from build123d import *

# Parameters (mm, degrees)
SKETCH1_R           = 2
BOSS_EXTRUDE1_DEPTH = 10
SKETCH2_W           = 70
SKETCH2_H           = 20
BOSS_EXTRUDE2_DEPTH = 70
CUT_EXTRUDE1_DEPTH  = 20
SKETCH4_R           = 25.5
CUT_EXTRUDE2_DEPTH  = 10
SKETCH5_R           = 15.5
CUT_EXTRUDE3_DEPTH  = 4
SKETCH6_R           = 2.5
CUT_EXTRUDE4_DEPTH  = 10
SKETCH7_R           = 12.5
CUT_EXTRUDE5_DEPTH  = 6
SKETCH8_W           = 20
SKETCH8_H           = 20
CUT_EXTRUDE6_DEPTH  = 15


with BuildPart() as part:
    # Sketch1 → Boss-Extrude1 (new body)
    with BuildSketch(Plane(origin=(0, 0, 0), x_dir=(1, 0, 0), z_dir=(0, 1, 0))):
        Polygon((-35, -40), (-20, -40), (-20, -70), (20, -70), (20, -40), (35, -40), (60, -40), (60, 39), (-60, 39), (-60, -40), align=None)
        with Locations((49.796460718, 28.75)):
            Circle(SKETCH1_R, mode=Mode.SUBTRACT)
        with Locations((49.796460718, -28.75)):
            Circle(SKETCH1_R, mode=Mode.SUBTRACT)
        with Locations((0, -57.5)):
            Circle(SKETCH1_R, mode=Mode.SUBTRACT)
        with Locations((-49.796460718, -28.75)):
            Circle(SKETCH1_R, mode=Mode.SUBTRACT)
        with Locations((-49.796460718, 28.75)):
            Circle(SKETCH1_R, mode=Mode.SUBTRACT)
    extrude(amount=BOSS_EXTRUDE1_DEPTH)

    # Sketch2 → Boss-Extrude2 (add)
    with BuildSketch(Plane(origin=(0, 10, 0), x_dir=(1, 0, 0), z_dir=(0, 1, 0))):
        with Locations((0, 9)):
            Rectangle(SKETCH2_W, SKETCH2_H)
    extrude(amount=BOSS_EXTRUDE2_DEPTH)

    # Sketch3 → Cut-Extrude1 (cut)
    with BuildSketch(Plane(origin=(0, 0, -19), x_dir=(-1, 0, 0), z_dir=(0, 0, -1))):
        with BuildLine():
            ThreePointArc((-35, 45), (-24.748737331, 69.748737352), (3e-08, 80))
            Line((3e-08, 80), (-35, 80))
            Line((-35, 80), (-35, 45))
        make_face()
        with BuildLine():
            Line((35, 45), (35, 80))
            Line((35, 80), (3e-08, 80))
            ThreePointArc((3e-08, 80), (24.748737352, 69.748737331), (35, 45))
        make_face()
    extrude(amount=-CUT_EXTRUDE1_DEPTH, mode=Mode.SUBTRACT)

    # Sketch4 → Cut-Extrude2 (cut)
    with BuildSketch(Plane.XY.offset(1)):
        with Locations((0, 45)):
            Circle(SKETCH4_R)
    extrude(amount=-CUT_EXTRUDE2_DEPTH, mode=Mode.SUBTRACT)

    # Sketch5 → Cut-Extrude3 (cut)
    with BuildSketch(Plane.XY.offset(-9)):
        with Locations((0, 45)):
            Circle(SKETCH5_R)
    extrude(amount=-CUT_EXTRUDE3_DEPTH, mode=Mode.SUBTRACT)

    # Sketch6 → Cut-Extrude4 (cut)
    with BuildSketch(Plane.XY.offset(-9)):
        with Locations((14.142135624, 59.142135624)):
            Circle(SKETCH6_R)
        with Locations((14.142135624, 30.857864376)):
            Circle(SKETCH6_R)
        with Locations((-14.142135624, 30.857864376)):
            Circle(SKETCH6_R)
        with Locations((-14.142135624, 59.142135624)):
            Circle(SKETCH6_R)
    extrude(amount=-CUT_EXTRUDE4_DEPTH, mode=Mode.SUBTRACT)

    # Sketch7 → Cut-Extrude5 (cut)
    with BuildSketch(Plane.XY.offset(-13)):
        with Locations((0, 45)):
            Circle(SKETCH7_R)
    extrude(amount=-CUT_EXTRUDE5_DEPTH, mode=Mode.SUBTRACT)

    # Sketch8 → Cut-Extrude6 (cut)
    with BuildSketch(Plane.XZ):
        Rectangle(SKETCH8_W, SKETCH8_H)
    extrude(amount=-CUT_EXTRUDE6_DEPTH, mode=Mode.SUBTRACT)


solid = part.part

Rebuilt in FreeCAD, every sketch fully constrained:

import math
import FreeCAD as App
import Part
import Sketcher
from FreeCAD import Vector

doc = App.newDocument("Part")
body = doc.addObject("PartDesign::Body", "Body")

# Sketch on XZ plane
sketch1 = doc.addObject("Sketcher::SketchObject", "Sketch")
body.addObject(sketch1)
sketch1.AttachmentSupport = (doc.XZ_Plane, [""])
sketch1.MapMode = "FlatFace"
sketch1.addGeometry([
    Part.LineSegment(Vector(-20, 40, 0), Vector(-20, 70, 0)),  # 0
    Part.LineSegment(Vector(-20, 70, 0), Vector(20, 70, 0)),  # 1
    Part.LineSegment(Vector(20, 70, 0), Vector(20, 40, 0)),  # 2
    Part.LineSegment(Vector(20, 40, 0), Vector(60, 40, 0)),  # 3
    Part.LineSegment(Vector(60, 40, 0), Vector(60, -39, 0)),  # 4
    Part.LineSegment(Vector(60, -39, 0), Vector(-60, -39, 0)),  # 5
    Part.LineSegment(Vector(-60, -39, 0), Vector(-60, 40, 0)),  # 6
    Part.LineSegment(Vector(-60, 40, 0), Vector(-20, 40, 0)),  # 7
    Part.Circle(Vector(-49.8, 28.8, 0), Vector(0, 0, 1), 2),  # 8
    Part.Circle(Vector(0, 57.5, 0), Vector(0, 0, 1), 2),  # 9
    Part.Circle(Vector(49.8, 28.8, 0), Vector(0, 0, 1), 2),  # 10
    Part.Circle(Vector(-49.8, -28.8, 0), Vector(0, 0, 1), 2),  # 11
    Part.Circle(Vector(49.8, -28.8, 0), Vector(0, 0, 1), 2),  # 12
], False)
sketch1.addConstraint([
    Sketcher.Constraint("Coincident", 0, 2, 1, 1),
    Sketcher.Constraint("Coincident", 1, 2, 2, 1),
    Sketcher.Constraint("Coincident", 2, 2, 3, 1),
    Sketcher.Constraint("Coincident", 3, 2, 4, 1),
    Sketcher.Constraint("Coincident", 4, 2, 5, 1),
    Sketcher.Constraint("Coincident", 5, 2, 6, 1),
    Sketcher.Constraint("Coincident", 6, 2, 7, 1),
    Sketcher.Constraint("Coincident", 7, 2, 0, 1),
    Sketcher.Constraint("Vertical", 0),
    Sketcher.Constraint("Horizontal", 1),
    Sketcher.Constraint("Vertical", 2),
    Sketcher.Constraint("Horizontal", 3),
    Sketcher.Constraint("Vertical", 4),
    Sketcher.Constraint("Horizontal", 5),
    Sketcher.Constraint("Vertical", 6),
    Sketcher.Constraint("Horizontal", 7),
    Sketcher.Constraint("Equal", 8, 9),
    Sketcher.Constraint("Equal", 9, 10),
    Sketcher.Constraint("Equal", 10, 11),
    Sketcher.Constraint("Equal", 11, 12),
    Sketcher.Constraint("Symmetric", 10, 3, 11, 3, -1, 1),
    Sketcher.Constraint("Symmetric", 8, 3, 12, 3, -1, 1),
    Sketcher.Constraint("Symmetric", 8, 3, 10, 3, -2),
    Sketcher.Constraint("Symmetric", 3, 2, 6, 2, -2),
    Sketcher.Constraint("PointOnObject", 9, 3, -2),
    Sketcher.Constraint("Equal", 1, 3),
    Sketcher.Constraint("Equal", 3, 7),
    Sketcher.Constraint("Diameter", 8, 4.0),
    Sketcher.Constraint("DistanceX", 1, 1, 1, 2, 40.0),
    Sketcher.Constraint("DistanceY", 0, 1, 0, 2, 30.0),
    Sketcher.Constraint("DistanceY", 4, 2, 4, 1, 79.0),
    Sketcher.Constraint("DistanceY", -1, 1, 0, 2, 70.0),
    Sketcher.Constraint("DistanceY", -1, 1, 9, 3, 57.5),
    Sketcher.Constraint("DistanceY", 11, 3, 8, 3, 57.5),
    Sketcher.Constraint("DistanceX", 8, 3, -1, 1, 49.796461),
])
pad1 = doc.addObject("PartDesign::Pad", "Pad")
body.addObject(pad1)
pad1.Profile = sketch1
pad1.Length = 10
pad1.Reversed = True

# Sketch on XZ plane
sketch2 = doc.addObject("Sketcher::SketchObject", "Sketch001")
body.addObject(sketch2)
sketch2.AttachmentSupport = (doc.XZ_Plane, [""])
sketch2.MapMode = "FlatFace"
sketch2.AttachmentOffset = App.Placement(Vector(0, 0, -10), App.Rotation())
sketch2.addGeometry([
    Part.LineSegment(Vector(-35, -19, 0), Vector(-35, 1, 0)),
    Part.LineSegment(Vector(-35, 1, 0), Vector(35, 1, 0)),
    Part.LineSegment(Vector(35, 1, 0), Vector(35, -19, 0)),
    Part.LineSegment(Vector(35, -19, 0), Vector(-35, -19, 0)),
], False)
sketch2.addConstraint([
    Sketcher.Constraint("Coincident", 0, 2, 1, 1),
    Sketcher.Constraint("Coincident", 1, 2, 2, 1),
    Sketcher.Constraint("Coincident", 2, 2, 3, 1),
    Sketcher.Constraint("Coincident", 3, 2, 0, 1),
    Sketcher.Constraint("Vertical", 0),
    Sketcher.Constraint("Horizontal", 1),
    Sketcher.Constraint("Vertical", 2),
    Sketcher.Constraint("Horizontal", 3),
    Sketcher.Constraint("DistanceX", 1, 1, 1, 2, 70.0),
    Sketcher.Constraint("DistanceY", 0, 1, 0, 2, 20.0),
    Sketcher.Constraint("DistanceX", 0, 2, -1, 1, 35.0),
    Sketcher.Constraint("DistanceY", -1, 1, 0, 2, 1.0),
])
pad2 = doc.addObject("PartDesign::Pad", "Pad001")
body.addObject(pad2)
pad2.Profile = sketch2
pad2.Length = 70
pad2.Reversed = True

# Sketch on XY plane
sketch3 = doc.addObject("Sketcher::SketchObject", "Sketch002")
body.addObject(sketch3)
sketch3.AttachmentSupport = (doc.XY_Plane, [""])
sketch3.MapMode = "FlatFace"
sketch3.AttachmentOffset = App.Placement(Vector(0, 0, -19), App.Rotation())
sketch3.addGeometry([
    Part.ArcOfCircle(Part.Circle(Vector(0, 45, 0), Vector(0, 0, 1), 35), math.radians(0), math.radians(90)),  # 0
    Part.LineSegment(Vector(0, 80, 0), Vector(35, 80, 0)),  # 1
    Part.LineSegment(Vector(35, 80, 0), Vector(35, 45, 0)),  # 2
    Part.LineSegment(Vector(-35, 45, 0), Vector(-35, 80, 0)),  # 3
    Part.LineSegment(Vector(-35, 80, 0), Vector(0, 80, 0)),  # 4
    Part.ArcOfCircle(Part.Circle(Vector(0, 45, 0), Vector(0, 0, 1), 35), math.radians(90), math.radians(180)),  # 5
], False)
sketch3.addConstraint([
    Sketcher.Constraint("Tangent", 0, 2, 1, 1),
    Sketcher.Constraint("Coincident", 1, 2, 2, 1),
    Sketcher.Constraint("Tangent", 2, 2, 0, 1),
    Sketcher.Constraint("Coincident", 3, 2, 4, 1),
    Sketcher.Constraint("Tangent", 4, 2, 5, 1),
    Sketcher.Constraint("Tangent", 5, 2, 3, 1),
    Sketcher.Constraint("Horizontal", 1),
    Sketcher.Constraint("Vertical", 2),
    Sketcher.Constraint("Vertical", 3),
    Sketcher.Constraint("Horizontal", 4),
    Sketcher.Constraint("Coincident", 5, 3, 0, 3),
    Sketcher.Constraint("Equal", 0, 5),
    Sketcher.Constraint("PointOnObject", 0, 3, -2),
    Sketcher.Constraint("Radius", 0, 35.0),
    Sketcher.Constraint("DistanceY", -1, 1, 0, 3, 45.0),
])
pocket1 = doc.addObject("PartDesign::Pocket", "Pocket")
body.addObject(pocket1)
pocket1.Profile = sketch3
pocket1.Length = 20
pocket1.Reversed = True

# Sketch on XY plane
sketch4 = doc.addObject("Sketcher::SketchObject", "Sketch003")
body.addObject(sketch4)
sketch4.AttachmentSupport = (doc.XY_Plane, [""])
sketch4.MapMode = "FlatFace"
sketch4.AttachmentOffset = App.Placement(Vector(0, 0, 1), App.Rotation())
sketch4.addGeometry(Part.Circle(Vector(0, 45, 0), Vector(0, 0, 1), 26), False)
sketch4.addConstraint([
    Sketcher.Constraint("PointOnObject", 0, 3, -2),
    Sketcher.Constraint("Diameter", 0, 51.0),
    Sketcher.Constraint("DistanceY", -1, 1, 0, 3, 45.0),
])
pocket2 = doc.addObject("PartDesign::Pocket", "Pocket001")
body.addObject(pocket2)
pocket2.Profile = sketch4
pocket2.Length = 10

# Sketch on XY plane
sketch5 = doc.addObject("Sketcher::SketchObject", "Sketch004")
body.addObject(sketch5)
sketch5.AttachmentSupport = (doc.XY_Plane, [""])
sketch5.MapMode = "FlatFace"
sketch5.AttachmentOffset = App.Placement(Vector(0, 0, -9), App.Rotation())
sketch5.addGeometry(Part.Circle(Vector(0, 45, 0), Vector(0, 0, 1), 16), False)
sketch5.addConstraint([
    Sketcher.Constraint("PointOnObject", 0, 3, -2),
    Sketcher.Constraint("Diameter", 0, 31.0),
    Sketcher.Constraint("DistanceY", -1, 1, 0, 3, 45.0),
])
pocket3 = doc.addObject("PartDesign::Pocket", "Pocket002")
body.addObject(pocket3)
pocket3.Profile = sketch5
pocket3.Length = 4

# Sketch on XY plane
sketch6 = doc.addObject("Sketcher::SketchObject", "Sketch005")
body.addObject(sketch6)
sketch6.AttachmentSupport = (doc.XY_Plane, [""])
sketch6.MapMode = "FlatFace"
sketch6.AttachmentOffset = App.Placement(Vector(0, 0, -9), App.Rotation())
sketch6.addGeometry([
    Part.Circle(Vector(14.1, 59.1, 0), Vector(0, 0, 1), 2.5),
    Part.Circle(Vector(14.1, 30.9, 0), Vector(0, 0, 1), 2.5),
    Part.Circle(Vector(-14.1, 30.9, 0), Vector(0, 0, 1), 2.5),
    Part.Circle(Vector(-14.1, 59.1, 0), Vector(0, 0, 1), 2.5),
], False)
sketch6.addConstraint([
    Sketcher.Constraint("Equal", 0, 1),
    Sketcher.Constraint("Equal", 1, 2),
    Sketcher.Constraint("Equal", 2, 3),
    Sketcher.Constraint("Symmetric", 1, 3, 2, 3, -2),
    Sketcher.Constraint("Symmetric", 0, 3, 3, 3, -2),
    Sketcher.Constraint("Vertical", 0, 3, 1, 3),
    Sketcher.Constraint("Diameter", 0, 5.0),
    Sketcher.Constraint("DistanceY", 1, 3, 0, 3, 28.284271),
    Sketcher.Constraint("DistanceX", 2, 3, 1, 3, 28.284271),
    Sketcher.Constraint("DistanceY", -1, 1, 0, 3, 59.142136),
])
pocket4 = doc.addObject("PartDesign::Pocket", "Pocket003")
body.addObject(pocket4)
pocket4.Profile = sketch6
pocket4.Length = 10

# Sketch on XY plane
sketch7 = doc.addObject("Sketcher::SketchObject", "Sketch006")
body.addObject(sketch7)
sketch7.AttachmentSupport = (doc.XY_Plane, [""])
sketch7.MapMode = "FlatFace"
sketch7.AttachmentOffset = App.Placement(Vector(0, 0, -13), App.Rotation())
sketch7.addGeometry(Part.Circle(Vector(0, 45, 0), Vector(0, 0, 1), 12), False)
sketch7.addConstraint([
    Sketcher.Constraint("PointOnObject", 0, 3, -2),
    Sketcher.Constraint("Diameter", 0, 25.0),
    Sketcher.Constraint("DistanceY", -1, 1, 0, 3, 45.0),
])
pocket5 = doc.addObject("PartDesign::Pocket", "Pocket004")
body.addObject(pocket5)
pocket5.Profile = sketch7
pocket5.Length = 6

# Sketch on XZ plane
sketch8 = doc.addObject("Sketcher::SketchObject", "Sketch007")
body.addObject(sketch8)
sketch8.AttachmentSupport = (doc.XZ_Plane, [""])
sketch8.MapMode = "FlatFace"
sketch8.addGeometry([
    Part.LineSegment(Vector(-10, 10, 0), Vector(-10, -10, 0)),
    Part.LineSegment(Vector(-10, -10, 0), Vector(10, -10, 0)),
    Part.LineSegment(Vector(10, -10, 0), Vector(10, 10, 0)),
    Part.LineSegment(Vector(10, 10, 0), Vector(-10, 10, 0)),
], False)
sketch8.addConstraint([
    Sketcher.Constraint("Coincident", 0, 2, 1, 1),
    Sketcher.Constraint("Coincident", 1, 2, 2, 1),
    Sketcher.Constraint("Coincident", 2, 2, 3, 1),
    Sketcher.Constraint("Coincident", 3, 2, 0, 1),
    Sketcher.Constraint("Vertical", 0),
    Sketcher.Constraint("Horizontal", 1),
    Sketcher.Constraint("Vertical", 2),
    Sketcher.Constraint("Horizontal", 3),
    Sketcher.Constraint("Symmetric", 0, 2, 2, 2, -1, 1),
    Sketcher.Constraint("Equal", 3, 0),
    Sketcher.Constraint("DistanceX", 1, 1, 1, 2, 20.0),
])
pocket6 = doc.addObject("PartDesign::Pocket", "Pocket005")
body.addObject(pocket6)
pocket6.Profile = sketch8
pocket6.Length = 15

doc.recompute()
